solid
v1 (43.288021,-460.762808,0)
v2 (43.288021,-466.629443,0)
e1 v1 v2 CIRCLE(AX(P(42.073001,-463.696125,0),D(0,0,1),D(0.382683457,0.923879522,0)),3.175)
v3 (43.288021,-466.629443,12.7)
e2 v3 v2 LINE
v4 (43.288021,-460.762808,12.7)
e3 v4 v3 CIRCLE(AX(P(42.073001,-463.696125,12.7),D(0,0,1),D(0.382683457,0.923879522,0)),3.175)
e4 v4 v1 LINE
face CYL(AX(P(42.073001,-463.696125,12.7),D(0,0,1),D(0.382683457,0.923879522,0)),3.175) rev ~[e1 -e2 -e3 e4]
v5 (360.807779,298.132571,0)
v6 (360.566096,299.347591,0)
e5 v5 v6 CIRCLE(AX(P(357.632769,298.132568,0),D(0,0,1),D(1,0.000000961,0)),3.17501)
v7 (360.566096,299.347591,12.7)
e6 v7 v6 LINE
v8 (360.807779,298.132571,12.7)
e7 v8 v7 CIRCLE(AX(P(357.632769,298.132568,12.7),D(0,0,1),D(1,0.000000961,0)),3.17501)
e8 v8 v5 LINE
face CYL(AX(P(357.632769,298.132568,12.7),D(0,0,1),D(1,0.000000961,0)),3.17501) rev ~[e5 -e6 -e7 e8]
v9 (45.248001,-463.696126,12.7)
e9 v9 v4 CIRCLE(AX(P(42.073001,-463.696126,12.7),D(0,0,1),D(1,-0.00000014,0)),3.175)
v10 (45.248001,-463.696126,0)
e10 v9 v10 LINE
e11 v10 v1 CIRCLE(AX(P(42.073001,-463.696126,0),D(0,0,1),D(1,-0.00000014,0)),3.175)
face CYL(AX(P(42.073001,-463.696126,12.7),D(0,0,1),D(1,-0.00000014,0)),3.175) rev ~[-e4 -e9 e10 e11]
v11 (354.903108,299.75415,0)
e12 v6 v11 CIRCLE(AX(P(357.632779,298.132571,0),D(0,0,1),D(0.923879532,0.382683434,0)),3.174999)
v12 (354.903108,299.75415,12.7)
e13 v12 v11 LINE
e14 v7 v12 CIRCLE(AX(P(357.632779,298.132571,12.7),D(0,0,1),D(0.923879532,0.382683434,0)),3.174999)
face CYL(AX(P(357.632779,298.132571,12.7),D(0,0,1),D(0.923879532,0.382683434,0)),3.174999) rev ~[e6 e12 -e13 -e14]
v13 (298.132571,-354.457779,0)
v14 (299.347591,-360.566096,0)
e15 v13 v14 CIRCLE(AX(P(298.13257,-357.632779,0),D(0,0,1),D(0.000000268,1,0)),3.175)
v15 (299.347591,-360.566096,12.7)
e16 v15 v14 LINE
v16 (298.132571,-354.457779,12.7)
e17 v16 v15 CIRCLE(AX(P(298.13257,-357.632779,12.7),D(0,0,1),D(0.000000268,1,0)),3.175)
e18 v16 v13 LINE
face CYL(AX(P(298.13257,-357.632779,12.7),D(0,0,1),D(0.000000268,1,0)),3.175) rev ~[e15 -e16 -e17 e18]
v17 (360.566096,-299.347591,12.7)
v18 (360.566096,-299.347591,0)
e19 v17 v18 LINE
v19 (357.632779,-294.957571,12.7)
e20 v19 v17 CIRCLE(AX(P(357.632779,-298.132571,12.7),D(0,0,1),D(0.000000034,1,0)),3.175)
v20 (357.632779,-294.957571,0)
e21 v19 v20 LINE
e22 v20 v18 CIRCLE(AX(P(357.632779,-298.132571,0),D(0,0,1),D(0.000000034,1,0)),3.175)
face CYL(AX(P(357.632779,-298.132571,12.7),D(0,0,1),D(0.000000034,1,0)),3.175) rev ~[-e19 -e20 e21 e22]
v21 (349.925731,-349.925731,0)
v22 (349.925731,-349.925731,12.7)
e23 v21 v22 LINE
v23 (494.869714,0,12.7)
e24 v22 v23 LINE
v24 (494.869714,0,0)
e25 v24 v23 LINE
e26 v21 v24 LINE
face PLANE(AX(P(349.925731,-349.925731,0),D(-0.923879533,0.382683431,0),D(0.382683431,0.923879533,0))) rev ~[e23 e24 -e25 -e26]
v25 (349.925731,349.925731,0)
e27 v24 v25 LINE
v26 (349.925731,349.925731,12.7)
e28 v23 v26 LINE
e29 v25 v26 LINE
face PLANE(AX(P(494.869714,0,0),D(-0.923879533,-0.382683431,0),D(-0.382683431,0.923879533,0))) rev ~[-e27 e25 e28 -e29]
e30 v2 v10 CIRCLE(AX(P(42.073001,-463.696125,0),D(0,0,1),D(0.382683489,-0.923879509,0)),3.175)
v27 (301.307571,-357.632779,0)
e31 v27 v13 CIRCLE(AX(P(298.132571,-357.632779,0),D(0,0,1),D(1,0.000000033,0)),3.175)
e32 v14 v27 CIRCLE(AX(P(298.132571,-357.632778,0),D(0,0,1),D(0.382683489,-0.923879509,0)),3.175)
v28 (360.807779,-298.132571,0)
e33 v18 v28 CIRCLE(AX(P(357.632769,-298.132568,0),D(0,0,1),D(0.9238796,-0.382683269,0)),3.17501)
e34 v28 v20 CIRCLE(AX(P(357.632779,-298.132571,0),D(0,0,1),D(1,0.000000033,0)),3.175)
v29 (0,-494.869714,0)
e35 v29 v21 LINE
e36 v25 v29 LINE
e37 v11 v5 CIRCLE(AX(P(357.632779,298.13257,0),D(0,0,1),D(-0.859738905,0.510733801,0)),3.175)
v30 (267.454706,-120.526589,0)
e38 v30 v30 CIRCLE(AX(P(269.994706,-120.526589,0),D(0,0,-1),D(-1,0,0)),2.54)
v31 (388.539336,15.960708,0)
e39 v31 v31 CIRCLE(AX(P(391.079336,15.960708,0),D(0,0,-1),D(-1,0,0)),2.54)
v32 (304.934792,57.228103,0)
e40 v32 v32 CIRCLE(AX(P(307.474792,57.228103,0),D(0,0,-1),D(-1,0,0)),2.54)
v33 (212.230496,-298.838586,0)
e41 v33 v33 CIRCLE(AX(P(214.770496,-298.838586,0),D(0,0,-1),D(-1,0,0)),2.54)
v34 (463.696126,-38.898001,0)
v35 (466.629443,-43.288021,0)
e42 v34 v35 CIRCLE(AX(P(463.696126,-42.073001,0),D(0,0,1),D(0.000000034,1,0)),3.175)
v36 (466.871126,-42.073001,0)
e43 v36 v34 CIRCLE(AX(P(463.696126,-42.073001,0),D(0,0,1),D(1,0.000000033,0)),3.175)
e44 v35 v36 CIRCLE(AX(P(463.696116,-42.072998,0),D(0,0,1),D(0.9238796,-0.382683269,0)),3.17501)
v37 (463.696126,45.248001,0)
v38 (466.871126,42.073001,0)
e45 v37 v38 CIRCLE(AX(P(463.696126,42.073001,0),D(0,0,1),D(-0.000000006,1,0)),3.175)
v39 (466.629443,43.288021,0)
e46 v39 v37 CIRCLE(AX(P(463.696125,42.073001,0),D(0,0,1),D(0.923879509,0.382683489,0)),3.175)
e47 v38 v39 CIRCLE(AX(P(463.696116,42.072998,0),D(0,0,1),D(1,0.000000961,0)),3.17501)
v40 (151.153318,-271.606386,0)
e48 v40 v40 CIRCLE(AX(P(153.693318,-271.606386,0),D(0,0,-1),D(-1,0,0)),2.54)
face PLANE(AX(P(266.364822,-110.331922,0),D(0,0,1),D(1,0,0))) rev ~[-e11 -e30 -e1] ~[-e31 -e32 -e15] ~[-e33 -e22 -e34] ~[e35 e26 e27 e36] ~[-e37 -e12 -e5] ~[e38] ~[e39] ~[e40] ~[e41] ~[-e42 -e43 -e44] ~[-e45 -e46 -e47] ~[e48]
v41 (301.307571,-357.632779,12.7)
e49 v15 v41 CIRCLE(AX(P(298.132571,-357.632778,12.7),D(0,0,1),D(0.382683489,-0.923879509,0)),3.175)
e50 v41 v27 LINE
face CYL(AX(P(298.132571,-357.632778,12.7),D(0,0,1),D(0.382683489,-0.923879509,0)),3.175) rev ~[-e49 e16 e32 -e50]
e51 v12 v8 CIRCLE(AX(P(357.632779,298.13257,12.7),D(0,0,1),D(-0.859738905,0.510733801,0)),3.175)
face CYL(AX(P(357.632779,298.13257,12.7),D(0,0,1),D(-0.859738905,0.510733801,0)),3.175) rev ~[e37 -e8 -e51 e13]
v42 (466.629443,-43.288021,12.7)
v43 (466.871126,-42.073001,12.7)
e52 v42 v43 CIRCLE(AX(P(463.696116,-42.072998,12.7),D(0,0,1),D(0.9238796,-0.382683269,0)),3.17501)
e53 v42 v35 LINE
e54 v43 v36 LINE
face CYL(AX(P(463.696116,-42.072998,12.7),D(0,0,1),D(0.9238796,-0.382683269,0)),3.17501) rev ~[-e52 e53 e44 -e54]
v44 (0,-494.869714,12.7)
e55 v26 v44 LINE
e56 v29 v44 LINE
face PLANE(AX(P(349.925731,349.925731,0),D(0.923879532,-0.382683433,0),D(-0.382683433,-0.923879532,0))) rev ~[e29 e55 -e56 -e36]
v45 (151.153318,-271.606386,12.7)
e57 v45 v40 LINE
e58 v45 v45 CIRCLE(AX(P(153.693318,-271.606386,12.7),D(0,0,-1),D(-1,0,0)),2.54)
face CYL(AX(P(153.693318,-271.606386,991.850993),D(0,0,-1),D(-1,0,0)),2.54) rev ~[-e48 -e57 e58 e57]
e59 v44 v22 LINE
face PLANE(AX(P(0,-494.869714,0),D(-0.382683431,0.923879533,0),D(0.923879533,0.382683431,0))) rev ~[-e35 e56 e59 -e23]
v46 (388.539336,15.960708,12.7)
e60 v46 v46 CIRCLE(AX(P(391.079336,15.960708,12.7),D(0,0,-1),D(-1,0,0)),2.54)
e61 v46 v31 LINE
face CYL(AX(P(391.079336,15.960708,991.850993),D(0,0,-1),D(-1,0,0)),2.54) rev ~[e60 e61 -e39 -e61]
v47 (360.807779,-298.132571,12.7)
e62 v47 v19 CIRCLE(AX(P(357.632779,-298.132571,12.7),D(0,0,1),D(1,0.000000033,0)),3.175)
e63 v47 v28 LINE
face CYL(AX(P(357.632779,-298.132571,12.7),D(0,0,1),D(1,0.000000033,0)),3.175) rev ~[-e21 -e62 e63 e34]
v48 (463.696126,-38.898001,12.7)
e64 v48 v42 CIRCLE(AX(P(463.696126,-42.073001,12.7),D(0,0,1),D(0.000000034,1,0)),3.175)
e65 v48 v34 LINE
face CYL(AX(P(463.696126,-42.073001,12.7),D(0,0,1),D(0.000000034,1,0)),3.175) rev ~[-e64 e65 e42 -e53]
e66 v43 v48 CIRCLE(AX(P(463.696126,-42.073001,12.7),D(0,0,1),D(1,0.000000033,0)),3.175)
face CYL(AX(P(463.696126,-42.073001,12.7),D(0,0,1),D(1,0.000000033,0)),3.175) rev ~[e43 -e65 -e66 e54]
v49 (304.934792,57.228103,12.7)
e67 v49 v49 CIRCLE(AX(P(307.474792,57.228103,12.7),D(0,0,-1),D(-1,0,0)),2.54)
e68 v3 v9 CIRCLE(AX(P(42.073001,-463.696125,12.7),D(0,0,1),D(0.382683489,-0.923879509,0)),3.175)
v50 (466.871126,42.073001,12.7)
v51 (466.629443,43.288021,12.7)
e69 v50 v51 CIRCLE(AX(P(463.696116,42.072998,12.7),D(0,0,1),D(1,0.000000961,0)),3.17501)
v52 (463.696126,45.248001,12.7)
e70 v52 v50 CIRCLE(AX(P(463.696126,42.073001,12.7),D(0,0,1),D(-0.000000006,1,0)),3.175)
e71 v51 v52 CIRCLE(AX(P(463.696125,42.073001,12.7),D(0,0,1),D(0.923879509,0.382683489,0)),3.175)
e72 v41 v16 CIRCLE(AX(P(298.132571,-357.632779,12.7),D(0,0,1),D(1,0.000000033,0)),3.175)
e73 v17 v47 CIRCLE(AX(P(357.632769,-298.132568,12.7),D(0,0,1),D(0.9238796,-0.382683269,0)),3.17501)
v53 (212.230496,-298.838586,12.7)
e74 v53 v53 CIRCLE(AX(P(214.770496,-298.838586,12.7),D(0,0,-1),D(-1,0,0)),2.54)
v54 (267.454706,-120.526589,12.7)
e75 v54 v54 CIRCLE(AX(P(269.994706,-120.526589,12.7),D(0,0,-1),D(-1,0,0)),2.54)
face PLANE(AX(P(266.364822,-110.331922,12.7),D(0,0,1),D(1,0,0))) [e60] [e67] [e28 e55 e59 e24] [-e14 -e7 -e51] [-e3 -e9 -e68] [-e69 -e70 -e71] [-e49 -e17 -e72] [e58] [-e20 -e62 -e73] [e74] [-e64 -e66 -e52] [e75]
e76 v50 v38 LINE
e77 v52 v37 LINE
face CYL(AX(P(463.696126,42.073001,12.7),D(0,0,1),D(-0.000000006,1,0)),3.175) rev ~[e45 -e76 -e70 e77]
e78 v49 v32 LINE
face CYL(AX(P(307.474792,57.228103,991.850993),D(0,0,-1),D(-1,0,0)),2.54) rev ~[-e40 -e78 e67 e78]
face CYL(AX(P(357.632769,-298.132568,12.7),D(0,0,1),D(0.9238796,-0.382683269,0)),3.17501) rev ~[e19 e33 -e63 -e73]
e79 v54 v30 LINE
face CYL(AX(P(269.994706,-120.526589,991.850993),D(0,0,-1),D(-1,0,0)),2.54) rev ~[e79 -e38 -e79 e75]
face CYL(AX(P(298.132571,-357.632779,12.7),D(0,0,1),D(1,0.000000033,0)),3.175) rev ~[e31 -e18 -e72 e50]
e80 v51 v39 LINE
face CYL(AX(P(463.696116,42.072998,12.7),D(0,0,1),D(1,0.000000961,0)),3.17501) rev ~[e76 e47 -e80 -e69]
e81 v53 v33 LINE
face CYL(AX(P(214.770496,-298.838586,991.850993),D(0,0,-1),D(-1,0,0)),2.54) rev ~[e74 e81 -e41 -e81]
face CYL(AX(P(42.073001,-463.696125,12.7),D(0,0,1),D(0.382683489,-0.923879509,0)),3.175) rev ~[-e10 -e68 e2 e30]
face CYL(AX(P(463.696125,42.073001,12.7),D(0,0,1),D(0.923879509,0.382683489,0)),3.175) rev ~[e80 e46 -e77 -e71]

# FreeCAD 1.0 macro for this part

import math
import FreeCAD as App
import Part
import Sketcher
Q = App.Units.Quantity


def add_polygon(sketch, points):
    """Adds a closed chain of lines whose ends are joined by coincident constraints."""
    first, n = sketch.GeometryCount, len(points)
    for a, b in zip(points, points[1:] + points[:1]):
        sketch.addGeometry(Part.LineSegment(App.Vector(*a, 0), App.Vector(*b, 0)), False)
    for i in range(n):
        sketch.addConstraint(Sketcher.Constraint("Coincident", first + i, 2, first + (i + 1) % n, 1))

doc = App.newDocument("Part")
params = doc.addObject("Spreadsheet::Sheet", "Params")
for row, (alias, value) in enumerate([
    ("sketch1_length", "36 in"),
    ("pad1_length", "0.5 in"),
    ("sketch2_radius", "0.125 in"),
    ("sketch3_diameter", "0.2 in"),
    ("hole_diameter", "0.2 in"),
], start=1):
    params.set(f"A{row}", alias)
    params.set(f"B{row}", "=" + value)
    params.setAlias(f"B{row}", alias)

body = doc.addObject("PartDesign::Body", "Body")

# Sketch on XY plane
sketch1 = body.newObject("Sketcher::SketchObject", "Sketch")
sketch1.AttachmentSupport = (doc.getObject("XY_Plane"), [""])
sketch1.MapMode = "FlatFace"
add_polygon(sketch1, [(350, -350), (495, 0), (350, 350), (0, -495)])  # lines 0-3
sketch1.addConstraint([
    Sketcher.Constraint("Symmetric", 1, 2, 3, 2, -1),
    Sketcher.Constraint("PointOnObject", 0, 2, -1),
    Sketcher.Constraint("PointOnObject", 2, 2, -2),
    Sketcher.Constraint("Parallel", 0, 2),
    Sketcher.Constraint("Perpendicular", 1, 3),
    Sketcher.Constraint("Equal", 1, 3),
    Sketcher.Constraint("Distance", 2, Q("36 in")),
])
sketch1.setExpression("Constraints[10]", "Params.sketch1_length")
pad1 = body.newObject("PartDesign::Pad", "Pad")
pad1.Profile = sketch1
pad1.setExpression("Length", "Params.pad1_length")

# Sketch on XY plane
sketch2 = body.newObject("Sketcher::SketchObject", "Sketch001")
sketch2.AttachmentSupport = (doc.getObject("XY_Plane"), [""])
sketch2.MapMode = "FlatFace"
sketch2.AttachmentOffset = App.Placement(App.Vector(0, 0, 0.5 * 25.4), App.Rotation())
sketch2.addGeometry([
    Part.ArcOfCircle(Part.Circle(App.Vector(357.6, 298.1, 0), App.Vector(0, 0, 1), 3.2), math.radians(149), math.radians(360)),  # 0
    Part.ArcOfCircle(Part.Circle(App.Vector(357.6, 298.1, 0), App.Vector(0, 0, 1), 3.2), math.radians(0), math.radians(22)),  # 1
    Part.ArcOfCircle(Part.Circle(App.Vector(357.6, 298.1, 0), App.Vector(0, 0, 1), 3.2), math.radians(23), math.radians(149)),  # 2
    Part.ArcOfCircle(Part.Circle(App.Vector(463.7, 42.1, 0), App.Vector(0, 0, 1), 3.2), math.radians(90), math.radians(360)),  # 3
    Part.ArcOfCircle(Part.Circle(App.Vector(463.7, 42.1, 0), App.Vector(0, 0, 1), 3.2), math.radians(0), math.radians(22)),  # 4
    Part.ArcOfCircle(Part.Circle(App.Vector(463.7, 42.1, 0), App.Vector(0, 0, 1), 3.2), math.radians(23), math.radians(90)),  # 5
    Part.ArcOfCircle(Part.Circle(App.Vector(463.7, -42.1, 0), App.Vector(0, 0, 1), 3.2), math.radians(-22), math.radians(0)),  # 6
    Part.ArcOfCircle(Part.Circle(App.Vector(463.7, -42.1, 0), App.Vector(0, 0, 1), 3.2), math.radians(0), math.radians(90)),  # 7
    Part.ArcOfCircle(Part.Circle(App.Vector(463.7, -42.1, 0), App.Vector(0, 0, 1), 3.2), math.radians(90), math.radians(337)),  # 8
    Part.ArcOfCircle(Part.Circle(App.Vector(357.6, -298.1, 0), App.Vector(0, 0, 1), 3.2), math.radians(-22), math.radians(0)),  # 9
    Part.ArcOfCircle(Part.Circle(App.Vector(357.6, -298.1, 0), App.Vector(0, 0, 1), 3.2), math.radians(0), math.radians(90)),  # 10
    Part.ArcOfCircle(Part.Circle(App.Vector(357.6, -298.1, 0), App.Vector(0, 0, 1), 3.2), math.radians(90), math.radians(337)),  # 11
    Part.ArcOfCircle(Part.Circle(App.Vector(298.1, -357.6, 0), App.Vector(0, 0, 1), 3.2), math.radians(-67), math.radians(0)),  # 12
    Part.ArcOfCircle(Part.Circle(App.Vector(298.1, -357.6, 0), App.Vector(0, 0, 1), 3.2), math.radians(0), math.radians(90)),  # 13
    Part.ArcOfCircle(Part.Circle(App.Vector(298.1, -357.6, 0), App.Vector(0, 0, 1), 3.2), math.radians(90), math.radians(293)),  # 14
    Part.ArcOfCircle(Part.Circle(App.Vector(42.1, -463.7, 0), App.Vector(0, 0, 1), 3.2), math.radians(-67), math.radians(0)),  # 15
    Part.ArcOfCircle(Part.Circle(App.Vector(42.1, -463.7, 0), App.Vector(0, 0, 1), 3.2), math.radians(0), math.radians(67)),  # 16
    Part.ArcOfCircle(Part.Circle(App.Vector(42.1, -463.7, 0), App.Vector(0, 0, 1), 3.2), math.radians(67), math.radians(293)),  # 17
], False)
sketch2.addConstraint([
    Sketcher.Constraint("Tangent", 0, 2, 1, 1),
    Sketcher.Constraint("Tangent", 1, 2, 2, 1),
    Sketcher.Constraint("Tangent", 2, 2, 0, 1),
    Sketcher.Constraint("Tangent", 3, 2, 4, 1),
    Sketcher.Constraint("Tangent", 4, 2, 5, 1),
    Sketcher.Constraint("Tangent", 5, 2, 3, 1),
    Sketcher.Constraint("Tangent", 6, 2, 7, 1),
    Sketcher.Constraint("Tangent", 7, 2, 8, 1),
    Sketcher.Constraint("Tangent", 8, 2, 6, 1),
    Sketcher.Constraint("Tangent", 9, 2, 10, 1),
    Sketcher.Constraint("Tangent", 10, 2, 11, 1),
    Sketcher.Constraint("Tangent", 11, 2, 9, 1),
    Sketcher.Constraint("Tangent", 12, 2, 13, 1),
    Sketcher.Constraint("Tangent", 13, 2, 14, 1),
    Sketcher.Constraint("Tangent", 14, 2, 12, 1),
    Sketcher.Constraint("Tangent", 15, 2, 16, 1),
    Sketcher.Constraint("Tangent", 16, 2, 17, 1),
    Sketcher.Constraint("Tangent", 17, 2, 15, 1),
    Sketcher.Constraint("Equal", 2, 3),
    Sketcher.Constraint("Equal", 4, 6),
    Sketcher.Constraint("Equal", 6, 9),
    Sketcher.Constraint("Equal", 11, 12),
    Sketcher.Constraint("Equal", 14, 15),
    Sketcher.Constraint("Symmetric", 4, 3, 6, 3, -1),
    Sketcher.Constraint("Symmetric", 0, 3, 9, 3, -1),
    Sketcher.Constraint("Horizontal", 2, 3, 0, 2),
    Sketcher.Constraint("Horizontal", 5, 3, 3, 2),
    Sketcher.Constraint("Horizontal", 8, 3, 6, 2),
    Sketcher.Constraint("Horizontal", 11, 3, 9, 2),
    Sketcher.Constraint("Horizontal", 14, 3, 12, 2),
    Sketcher.Constraint("Horizontal", 17, 3, 15, 2),
    Sketcher.Constraint("Vertical", 8, 3, 5, 2),
    Sketcher.Constraint("Vertical", 5, 2, 7, 2),
    Sketcher.Constraint("Vertical", 4, 2, 8, 2),
    Sketcher.Constraint("Vertical", 11, 3, 10, 2),
    Sketcher.Constraint("Vertical", 1, 2, 11, 2),
    Sketcher.Constraint("Vertical", 14, 3, 13, 2),
    Sketcher.Constraint("Vertical", 16, 2, 17, 2),
    Sketcher.Constraint("Radius", 0, Q("0.125 in")),
    Sketcher.Constraint("DistanceY", -1, 1, 3, 3, Q("42.073001 mm")),
    Sketcher.Constraint("DistanceX", -1, 1, 15, 3, Q("42.073001 mm")),
    Sketcher.Constraint("DistanceX", 12, 3, 9, 3, Q("59.500199 mm")),
    Sketcher.Constraint("DistanceX", -1, 1, 0, 3, Q("357.632779 mm")),
    Sketcher.Constraint("DistanceY", -1, 1, 0, 3, Q("298.13257 mm")),
    Sketcher.Constraint("DistanceY", 12, 3, -1, 1, Q("357.632778 mm")),
    Sketcher.Constraint("DistanceY", -1, 1, 1, 2, Q("299.347591 mm")),
    Sketcher.Constraint("DistanceY", -1, 1, 2, 2, Q("299.75415 mm")),
    Sketcher.Constraint("DistanceY", -1, 1, 4, 2, Q("43.288021 mm")),
    Sketcher.Constraint("DistanceX", -1, 1, 14, 2, Q("299.347591 mm")),
    Sketcher.Constraint("DistanceX", -1, 1, 16, 2, Q("43.288021 mm")),
    Sketcher.Constraint("DistanceY", 16, 2, -1, 1, Q("460.762808 mm")),
    Sketcher.Constraint("DistanceX", 1, 2, 4, 3, Q("103.13002 mm")),
])
sketch2.setExpression("Constraints[38]", "Params.sketch2_radius")
pocket1 = body.newObject("PartDesign::Pocket", "Pocket")
pocket1.Profile = sketch2
pocket1.Type = "ThroughAll"

# Sketch on XY plane
sketch3 = body.newObject("Sketcher::SketchObject", "Sketch002")
sketch3.AttachmentSupport = (doc.getObject("XY_Plane"), [""])
sketch3.MapMode = "FlatFace"
sketch3.AttachmentOffset = App.Placement(App.Vector(0, 0, 0.5 * 25.4), App.Rotation())
sketch3.addGeometry([
    Part.Circle(App.Vector(307.5, 57.2, 0), App.Vector(0, 0, 1), 2.5),  # 0
    Part.Circle(App.Vector(270, -120.5, 0), App.Vector(0, 0, 1), 2.5),  # 1
    Part.Circle(App.Vector(391.1, 16, 0), App.Vector(0, 0, 1), 2.5),  # 2
    Part.Circle(App.Vector(214.8, -298.8, 0), App.Vector(0, 0, 1), 2.5),  # 3
    Part.Circle(App.Vector(153.7, -271.6, 0), App.Vector(0, 0, 1), 2.5),  # 4
], False)
sketch3.addConstraint([
    Sketcher.Constraint("Equal", 0, 1),
    Sketcher.Constraint("Equal", 1, 2),
    Sketcher.Constraint("Equal", 2, 3),
    Sketcher.Constraint("Equal", 3, 4),
    Sketcher.Constraint("Diameter", 0, Q("0.2 in")),
    Sketcher.Constraint("DistanceY", 3, 3, 4, 3, Q("27.2322 mm")),
    Sketcher.Constraint("DistanceX", -1, 1, 0, 3, Q("307.474792 mm")),
    Sketcher.Constraint("DistanceY", 1, 3, -1, 1, Q("120.526589 mm")),
    Sketcher.Constraint("DistanceX", -1, 1, 4, 3, Q("153.693318 mm")),
    Sketcher.Constraint("DistanceY", 1, 3, 0, 3, Q("177.754692 mm")),
    Sketcher.Constraint("DistanceX", 1, 3, 2, 3, Q("121.08463 mm")),
    Sketcher.Constraint("DistanceX", 3, 3, 1, 3, Q("55.22421 mm")),
    Sketcher.Constraint("DistanceY", 3, 3, 0, 3, Q("356.066689 mm")),
    Sketcher.Constraint("DistanceX", 4, 3, 3, 3, Q("61.077178 mm")),
    Sketcher.Constraint("DistanceY", -1, 1, 2, 3, Q("15.960708 mm")),
])
sketch3.setExpression("Constraints[4]", "Params.sketch3_diameter")
doc.recompute()
hole = body.newObject("PartDesign::Hole", "Hole")
hole.Profile = sketch3
hole.ThreadType = "None"
hole.setExpression("Diameter", "Params.hole_diameter")
hole.DepthType = "ThroughAll"

doc.recompute()
